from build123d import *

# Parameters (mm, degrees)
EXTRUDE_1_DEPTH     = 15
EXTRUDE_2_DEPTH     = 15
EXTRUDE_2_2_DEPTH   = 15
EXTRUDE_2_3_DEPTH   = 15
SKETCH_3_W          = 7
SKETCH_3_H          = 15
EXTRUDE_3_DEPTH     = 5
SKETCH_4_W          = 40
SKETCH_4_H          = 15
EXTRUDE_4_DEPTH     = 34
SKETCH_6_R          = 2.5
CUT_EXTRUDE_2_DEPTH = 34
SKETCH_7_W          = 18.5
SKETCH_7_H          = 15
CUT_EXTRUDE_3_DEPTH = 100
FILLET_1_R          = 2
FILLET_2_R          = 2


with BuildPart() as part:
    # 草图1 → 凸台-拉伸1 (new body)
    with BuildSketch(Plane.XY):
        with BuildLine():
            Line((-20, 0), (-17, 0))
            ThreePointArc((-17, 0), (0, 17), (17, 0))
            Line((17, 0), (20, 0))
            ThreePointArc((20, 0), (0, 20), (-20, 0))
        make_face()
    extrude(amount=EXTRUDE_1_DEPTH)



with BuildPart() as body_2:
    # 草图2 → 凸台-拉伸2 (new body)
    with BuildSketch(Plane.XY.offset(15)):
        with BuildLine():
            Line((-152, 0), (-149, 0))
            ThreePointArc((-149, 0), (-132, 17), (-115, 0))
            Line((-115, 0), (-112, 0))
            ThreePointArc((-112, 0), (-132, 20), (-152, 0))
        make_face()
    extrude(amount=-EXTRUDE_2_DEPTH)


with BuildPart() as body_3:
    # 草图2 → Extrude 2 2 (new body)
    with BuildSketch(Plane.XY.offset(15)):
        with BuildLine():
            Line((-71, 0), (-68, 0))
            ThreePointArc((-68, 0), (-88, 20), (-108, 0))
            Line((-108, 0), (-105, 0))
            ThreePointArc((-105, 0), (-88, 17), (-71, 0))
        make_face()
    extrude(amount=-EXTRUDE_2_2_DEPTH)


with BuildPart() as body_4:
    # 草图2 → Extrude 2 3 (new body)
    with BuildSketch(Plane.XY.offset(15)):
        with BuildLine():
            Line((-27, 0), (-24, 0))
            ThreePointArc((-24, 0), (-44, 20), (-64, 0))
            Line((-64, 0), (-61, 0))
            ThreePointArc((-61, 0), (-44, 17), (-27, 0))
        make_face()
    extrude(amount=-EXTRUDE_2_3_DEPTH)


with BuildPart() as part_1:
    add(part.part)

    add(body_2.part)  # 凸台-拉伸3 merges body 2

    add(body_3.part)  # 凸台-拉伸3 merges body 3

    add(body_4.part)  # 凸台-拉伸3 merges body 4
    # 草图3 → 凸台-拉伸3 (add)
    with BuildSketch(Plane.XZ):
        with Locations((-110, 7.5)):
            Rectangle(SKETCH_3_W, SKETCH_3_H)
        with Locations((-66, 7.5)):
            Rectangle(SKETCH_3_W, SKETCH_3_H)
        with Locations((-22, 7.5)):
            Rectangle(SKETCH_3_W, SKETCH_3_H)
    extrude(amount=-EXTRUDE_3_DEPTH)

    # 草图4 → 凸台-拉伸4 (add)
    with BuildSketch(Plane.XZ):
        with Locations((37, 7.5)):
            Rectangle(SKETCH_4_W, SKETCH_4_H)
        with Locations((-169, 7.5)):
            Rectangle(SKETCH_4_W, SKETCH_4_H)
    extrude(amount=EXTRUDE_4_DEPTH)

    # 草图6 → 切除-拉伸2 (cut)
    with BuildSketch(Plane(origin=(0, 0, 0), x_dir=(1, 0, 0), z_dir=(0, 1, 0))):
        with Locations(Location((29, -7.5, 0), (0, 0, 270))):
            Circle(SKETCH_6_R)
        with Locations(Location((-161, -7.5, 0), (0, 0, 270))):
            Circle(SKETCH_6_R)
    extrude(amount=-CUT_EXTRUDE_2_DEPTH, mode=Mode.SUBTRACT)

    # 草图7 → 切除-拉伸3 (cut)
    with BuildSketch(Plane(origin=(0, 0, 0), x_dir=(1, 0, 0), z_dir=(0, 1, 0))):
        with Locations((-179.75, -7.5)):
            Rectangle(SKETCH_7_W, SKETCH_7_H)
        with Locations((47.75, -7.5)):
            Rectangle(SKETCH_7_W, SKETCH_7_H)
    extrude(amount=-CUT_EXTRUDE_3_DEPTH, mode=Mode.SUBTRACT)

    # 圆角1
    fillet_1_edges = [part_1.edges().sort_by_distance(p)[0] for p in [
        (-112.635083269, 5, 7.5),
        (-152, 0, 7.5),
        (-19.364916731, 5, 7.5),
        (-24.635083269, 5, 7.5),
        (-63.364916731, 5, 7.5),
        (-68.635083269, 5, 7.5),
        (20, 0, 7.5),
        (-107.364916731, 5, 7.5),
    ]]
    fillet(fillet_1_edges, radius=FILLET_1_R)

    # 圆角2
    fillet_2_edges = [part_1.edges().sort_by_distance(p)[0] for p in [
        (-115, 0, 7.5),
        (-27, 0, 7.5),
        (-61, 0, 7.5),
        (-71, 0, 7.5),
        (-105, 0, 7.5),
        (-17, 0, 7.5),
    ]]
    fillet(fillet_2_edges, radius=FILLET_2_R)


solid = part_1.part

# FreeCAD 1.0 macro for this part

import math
import FreeCAD as App
import Part
import Sketcher

V = App.Vector
Q = App.Units.Quantity


def edges_at(feature, points):
    """Names of the edges that pass closest to the given points."""
    edges = feature.Shape.Edges
    near = lambda p: min(range(len(edges)), key=lambda i: edges[i].distToShape(Part.Vertex(*p))[0])
    return sorted({f"Edge{near(p) + 1}" for p in points})


def add_polygon(sketch, points):
    """Adds a closed chain of lines whose ends are joined by coincident constraints."""
    first, n = sketch.GeometryCount, len(points)
    for a, b in zip(points, points[1:] + points[:1]):
        sketch.addGeometry(Part.LineSegment(App.Vector(*a, 0), App.Vector(*b, 0)), False)
    for i in range(n):
        sketch.addConstraint(Sketcher.Constraint("Coincident", first + i, 2, first + (i + 1) % n, 1))

doc = App.newDocument("Part")
body = doc.addObject("PartDesign::Body", "Body")

sketch1 = body.newObject("Sketcher::SketchObject", "Sketch")
sketch1.AttachmentSupport = (doc.getObject("XY_Plane"), [""])
sketch1.MapMode = "FlatFace"
sketch1.addGeometry([
    Part.LineSegment(V(-20, 0, 0), V(-17, 0, 0)),
    Part.ArcOfCircle(Part.Circle(V(0, 0, 0), V(0, 0, 1), 17), math.radians(0), math.radians(180)),
    Part.LineSegment(V(17, 0, 0), V(20, 0, 0)),
    Part.ArcOfCircle(Part.Circle(V(0, 0, 0), V(0, 0, 1), 20), math.radians(0), math.radians(180)),
], False)
sketch1.addConstraint([
    Sketcher.Constraint("Coincident", 0, 2, 1, 2),
    Sketcher.Constraint("Coincident", 1, 1, 2, 1),
    Sketcher.Constraint("Coincident", 2, 2, 3, 1),
    Sketcher.Constraint("Coincident", 3, 2, 0, 1),
    Sketcher.Constraint("Horizontal", 0),
    Sketcher.Constraint("Horizontal", 2),
    Sketcher.Constraint("Coincident", 1, 3, -1, 1),
    Sketcher.Constraint("Coincident", 3, 3, -1, 1),
    Sketcher.Constraint("PointOnObject", 0, 2, -1),
    Sketcher.Constraint("PointOnObject", 1, 1, -1),
    Sketcher.Constraint("Radius", 1, Q("17 mm")),
    Sketcher.Constraint("Radius", 3, Q("20 mm")),
])
pad1 = body.newObject("PartDesign::Pad", "Pad")
pad1.Profile = sketch1
pad1.Length = 15
body2 = doc.addObject("PartDesign::Body", "Body001")

sketch2 = body2.newObject("Sketcher::SketchObject", "Sketch001")
sketch2.AttachmentSupport = (doc.getObject("XY_Plane001"), [""])
sketch2.MapMode = "FlatFace"
sketch2.AttachmentOffset = App.Placement(V(0, 0, 15), App.Rotation())
sketch2.addGeometry([
    Part.LineSegment(V(-152, 0, 0), V(-149, 0, 0)),
    Part.ArcOfCircle(Part.Circle(V(-132, 0, 0), V(0, 0, 1), 17), math.radians(0), math.radians(180)),
    Part.LineSegment(V(-115, 0, 0), V(-112, 0, 0)),
    Part.ArcOfCircle(Part.Circle(V(-132, 0, 0), V(0, 0, 1), 20), math.radians(0), math.radians(180)),
], False)
sketch2.addConstraint([
    Sketcher.Constraint("Coincident", 0, 2, 1, 2),
    Sketcher.Constraint("Coincident", 1, 1, 2, 1),
    Sketcher.Constraint("Coincident", 2, 2, 3, 1),
    Sketcher.Constraint("Coincident", 3, 2, 0, 1),
    Sketcher.Constraint("Horizontal", 0),
    Sketcher.Constraint("Horizontal", 2),
    Sketcher.Constraint("Coincident", 3, 3, 1, 3),
    Sketcher.Constraint("PointOnObject", 1, 3, -1),
    Sketcher.Constraint("PointOnObject", 0, 2, -1),
    Sketcher.Constraint("PointOnObject", 1, 1, -1),
    Sketcher.Constraint("Radius", 1, Q("17 mm")),
    Sketcher.Constraint("Radius", 3, Q("20 mm")),
    Sketcher.Constraint("DistanceX", 1, 3, -1, 1, Q("132 mm")),
])
pad2 = body2.newObject("PartDesign::Pad", "Pad001")
pad2.Profile = sketch2
pad2.Length = 15
pad2.Reversed = True
body3 = doc.addObject("PartDesign::Body", "Body002")

sketch3 = body3.newObject("Sketcher::SketchObject", "Sketch002")
sketch3.AttachmentSupport = (doc.getObject("XY_Plane002"), [""])
sketch3.MapMode = "FlatFace"
sketch3.AttachmentOffset = App.Placement(V(0, 0, 15), App.Rotation())
sketch3.addGeometry([
    Part.LineSegment(V(-71, 0, 0), V(-68, 0, 0)),
    Part.ArcOfCircle(Part.Circle(V(-88, 0, 0), V(0, 0, 1), 20), math.radians(0), math.radians(180)),
    Part.LineSegment(V(-108, 0, 0), V(-105, 0, 0)),
    Part.ArcOfCircle(Part.Circle(V(-88, 0, 0), V(0, 0, 1), 17), math.radians(0), math.radians(180)),
], False)
sketch3.addConstraint([
    Sketcher.Constraint("Coincident", 0, 2, 1, 1),
    Sketcher.Constraint("Coincident", 1, 2, 2, 1),
    Sketcher.Constraint("Coincident", 2, 2, 3, 2),
    Sketcher.Constraint("Coincident", 3, 1, 0, 1),
    Sketcher.Constraint("Horizontal", 0),
    Sketcher.Constraint("Horizontal", 2),
    Sketcher.Constraint("Coincident", 3, 3, 1, 3),
    Sketcher.Constraint("PointOnObject", 1, 3, -1),
    Sketcher.Constraint("PointOnObject", 0, 2, -1),
    Sketcher.Constraint("PointOnObject", 1, 2, -1),
    Sketcher.Constraint("Radius", 1, Q("20 mm")),
    Sketcher.Constraint("Radius", 3, Q("17 mm")),
    Sketcher.Constraint("DistanceX", 1, 3, -1, 1, Q("88 mm")),
])
pad3 = body3.newObject("PartDesign::Pad", "Pad002")
pad3.Profile = sketch3
pad3.Length = 15
pad3.Reversed = True
body4 = doc.addObject("PartDesign::Body", "Body003")

sketch4 = body4.newObject("Sketcher::SketchObject", "Sketch003")
sketch4.AttachmentSupport = (doc.getObject("XY_Plane003"), [""])
sketch4.MapMode = "FlatFace"
sketch4.AttachmentOffset = App.Placement(V(0, 0, 15), App.Rotation())
sketch4.addGeometry([
    Part.LineSegment(V(-27, 0, 0), V(-24, 0, 0)),
    Part.ArcOfCircle(Part.Circle(V(-44, 0, 0), V(0, 0, 1), 20), math.radians(0), math.radians(180)),
    Part.LineSegment(V(-64, 0, 0), V(-61, 0, 0)),
    Part.ArcOfCircle(Part.Circle(V(-44, 0, 0), V(0, 0, 1), 17), math.radians(0), math.radians(180)),
], False)
sketch4.addConstraint([
    Sketcher.Constraint("Coincident", 0, 2, 1, 1),
    Sketcher.Constraint("Coincident", 1, 2, 2, 1),
    Sketcher.Constraint("Coincident", 2, 2, 3, 2),
    Sketcher.Constraint("Coincident", 3, 1, 0, 1),
    Sketcher.Constraint("Horizontal", 0),
    Sketcher.Constraint("Horizontal", 2),
    Sketcher.Constraint("Coincident", 3, 3, 1, 3),
    Sketcher.Constraint("PointOnObject", 1, 3, -1),
    Sketcher.Constraint("PointOnObject", 0, 2, -1),
    Sketcher.Constraint("PointOnObject", 1, 2, -1),
    Sketcher.Constraint("Radius", 1, Q("20 mm")),
    Sketcher.Constraint("Radius", 3, Q("17 mm")),
    Sketcher.Constraint("DistanceX", 1, 3, -1, 1, Q("44 mm")),
])
pad4 = body4.newObject("PartDesign::Pad", "Pad003")
pad4.Profile = sketch4
pad4.Length = 15
pad4.Reversed = True
body.AllowCompound = True
doc.recompute()

boolean = body.newObject("PartDesign::Boolean", "Boolean")
boolean.Type = "Fuse"
boolean.addObjects([body2])
doc.recompute()

boolean2 = body.newObject("PartDesign::Boolean", "Boolean001")
boolean2.Type = "Fuse"
boolean2.addObjects([body3])
doc.recompute()

boolean3 = body.newObject("PartDesign::Boolean", "Boolean002")
boolean3.Type = "Fuse"
boolean3.addObjects([body4])

sketch5 = body.newObject("Sketcher::SketchObject", "Sketch004")
sketch5.AttachmentSupport = (doc.getObject("XZ_Plane"), [""])
sketch5.MapMode = "FlatFace"
add_polygon(sketch5, [(-114, 15), (-114, 0), (-106, 0), (-106, 15)])
add_polygon(sketch5, [(-70, 15), (-70, 0), (-62, 0), (-62, 15)])
add_polygon(sketch5, [(-26, 15), (-26, 0), (-18, 0), (-18, 15)])
sketch5.addConstraint([
    Sketcher.Constraint("Vertical", 0),
    Sketcher.Constraint("Horizontal", 1),
    Sketcher.Constraint("Vertical", 2),
    Sketcher.Constraint("Horizontal", 3),
    Sketcher.Constraint("Vertical", 4),
    Sketcher.Constraint("Horizontal", 5),
    Sketcher.Constraint("Vertical", 6),
    Sketcher.Constraint("Horizontal", 7),
    Sketcher.Constraint("Vertical", 8),
    Sketcher.Constraint("Horizontal", 9),
    Sketcher.Constraint("Vertical", 10),
    Sketcher.Constraint("Horizontal", 11),
    Sketcher.Constraint("PointOnObject", 0, 2, -1),
    Sketcher.Constraint("PointOnObject", 4, 2, -1),
    Sketcher.Constraint("PointOnObject", 8, 2, -1),
    Sketcher.Constraint("Horizontal", 3, 2, 6, 2),
    Sketcher.Constraint("Horizontal", 7, 2, 10, 2),
    Sketcher.Constraint("Equal", 3, 5),
    Sketcher.Constraint("Equal", 7, 9),
    Sketcher.Constraint("DistanceX", 1, 1, 1, 2, Q("7 mm")),
    Sketcher.Constraint("DistanceY", 0, 2, 0, 1, Q("15 mm")),
    Sketcher.Constraint("DistanceX", 1, 2, 4, 2, Q("37 mm")),
    Sketcher.Constraint("DistanceX", 5, 2, 8, 2, Q("37 mm")),
    Sketcher.Constraint("DistanceX", 0, 2, -1, 1, Q("113.5 mm")),
])
pad5 = body.newObject("PartDesign::Pad", "Pad004")
pad5.Profile = sketch5
pad5.Length = 5
pad5.Reversed = True

sketch6 = body.newObject("Sketcher::SketchObject", "Sketch005")
sketch6.AttachmentSupport = (doc.getObject("XZ_Plane"), [""])
sketch6.MapMode = "FlatFace"
add_polygon(sketch6, [(17, 15), (17, 0), (57, 0), (57, 15)])
add_polygon(sketch6, [(-189, 15), (-189, 0), (-149, 0), (-149, 15)])
sketch6.addConstraint([
    Sketcher.Constraint("Vertical", 0),
    Sketcher.Constraint("Horizontal", 1),
    Sketcher.Constraint("Vertical", 2),
    Sketcher.Constraint("Horizontal", 3),
    Sketcher.Constraint("Vertical", 4),
    Sketcher.Constraint("Horizontal", 5),
    Sketcher.Constraint("Vertical", 6),
    Sketcher.Constraint("Horizontal", 7),
    Sketcher.Constraint("PointOnObject", 0, 2, -1),
    Sketcher.Constraint("PointOnObject", 4, 2, -1),
    Sketcher.Constraint("Horizontal", 3, 2, 6, 2),
    Sketcher.Constraint("Equal", 3, 5),
    Sketcher.Constraint("DistanceX", 1, 1, 1, 2, Q("40 mm")),
    Sketcher.Constraint("DistanceY", 0, 2, 0, 1, Q("15 mm")),
    Sketcher.Constraint("DistanceX", -1, 1, 0, 2, Q("17 mm")),
    Sketcher.Constraint("DistanceX", 4, 2, -1, 1, Q("189 mm")),
])
pad6 = body.newObject("PartDesign::Pad", "Pad005")
pad6.Profile = sketch6
pad6.Length = 34

sketch7 = body.newObject("Sketcher::SketchObject", "Sketch006")
sketch7.AttachmentSupport = (doc.getObject("XZ_Plane"), [""])
sketch7.MapMode = "FlatFace"
sketch7.addGeometry([
    Part.Circle(V(29, 7.5, 0), V(0, 0, 1), 2.5),
    Part.Circle(V(-161, 7.5, 0), V(0, 0, 1), 2.5),
], False)
sketch7.addConstraint([
    Sketcher.Constraint("Equal", 0, 1),
    Sketcher.Constraint("Horizontal", 0, 3, 1, 3),
    Sketcher.Constraint("Diameter", 0, Q("5 mm")),
    Sketcher.Constraint("DistanceX", -1, 1, 0, 3, Q("29 mm")),
    Sketcher.Constraint("DistanceX", 1, 3, -1, 1, Q("161 mm")),
    Sketcher.Constraint("DistanceY", -1, 1, 0, 3, Q("7.5 mm")),
])
pocket1 = body.newObject("PartDesign::Pocket", "Pocket")
pocket1.Profile = sketch7
pocket1.Length = 34
pocket1.Reversed = True

sketch8 = body.newObject("Sketcher::SketchObject", "Sketch007")
sketch8.AttachmentSupport = (doc.getObject("XZ_Plane"), [""])
sketch8.MapMode = "FlatFace"
add_polygon(sketch8, [(-189, 0), (-189, 15), (-170, 15), (-170, 0)])
add_polygon(sketch8, [(38, 0), (38, 15), (57, 15), (57, 0)])
sketch8.addConstraint([
    Sketcher.Constraint("Vertical", 0),
    Sketcher.Constraint("Horizontal", 1),
    Sketcher.Constraint("Vertical", 2),
    Sketcher.Constraint("Horizontal", 3),
    Sketcher.Constraint("Vertical", 4),
    Sketcher.Constraint("Horizontal", 5),
    Sketcher.Constraint("Vertical", 6),
    Sketcher.Constraint("Horizontal", 7),
    Sketcher.Constraint("PointOnObject", 2, 2, -1),
    Sketcher.Constraint("PointOnObject", 6, 2, -1),
    Sketcher.Constraint("Horizontal", 1, 2, 4, 2),
    Sketcher.Constraint("Equal", 3, 5),
    Sketcher.Constraint("DistanceY", 0, 1, 0, 2, Q("15 mm")),
    Sketcher.Constraint("DistanceX", 1, 1, 1, 2, Q("18.5 mm")),
    Sketcher.Constraint("DistanceX", 0, 2, -1, 1, Q("189 mm")),
    Sketcher.Constraint("DistanceX", -1, 1, 5, 2, Q("57 mm")),
])
pocket2 = body.newObject("PartDesign::Pocket", "Pocket001")
pocket2.Profile = sketch8
pocket2.Length = 100
pocket2.Reversed = True
doc.recompute()

fillet = body.newObject("PartDesign::Fillet", "Fillet")
fillet.Base = (pocket2, edges_at(pocket2, [
    (-112.635, 5, 7.5),
    (-152, 0, 7.5),
    (-19.365, 5, 7.5),
    (-24.635, 5, 7.5),
    (-63.365, 5, 7.5),
    (-68.635, 5, 7.5),
    (20, 0, 7.5),
    (-107.365, 5, 7.5),
]))
fillet.Radius = 2
doc.recompute()

fillet2 = body.newObject("PartDesign::Fillet", "Fillet001")
fillet2.Base = (fillet, edges_at(fillet, [
    (-115, 0, 7.5),
    (-27, 0, 7.5),
    (-61, 0, 7.5),
    (-71, 0, 7.5),
    (-105, 0, 7.5),
    (-17, 0, 7.5),
]))
fillet2.Radius = 2

doc.recompute()
